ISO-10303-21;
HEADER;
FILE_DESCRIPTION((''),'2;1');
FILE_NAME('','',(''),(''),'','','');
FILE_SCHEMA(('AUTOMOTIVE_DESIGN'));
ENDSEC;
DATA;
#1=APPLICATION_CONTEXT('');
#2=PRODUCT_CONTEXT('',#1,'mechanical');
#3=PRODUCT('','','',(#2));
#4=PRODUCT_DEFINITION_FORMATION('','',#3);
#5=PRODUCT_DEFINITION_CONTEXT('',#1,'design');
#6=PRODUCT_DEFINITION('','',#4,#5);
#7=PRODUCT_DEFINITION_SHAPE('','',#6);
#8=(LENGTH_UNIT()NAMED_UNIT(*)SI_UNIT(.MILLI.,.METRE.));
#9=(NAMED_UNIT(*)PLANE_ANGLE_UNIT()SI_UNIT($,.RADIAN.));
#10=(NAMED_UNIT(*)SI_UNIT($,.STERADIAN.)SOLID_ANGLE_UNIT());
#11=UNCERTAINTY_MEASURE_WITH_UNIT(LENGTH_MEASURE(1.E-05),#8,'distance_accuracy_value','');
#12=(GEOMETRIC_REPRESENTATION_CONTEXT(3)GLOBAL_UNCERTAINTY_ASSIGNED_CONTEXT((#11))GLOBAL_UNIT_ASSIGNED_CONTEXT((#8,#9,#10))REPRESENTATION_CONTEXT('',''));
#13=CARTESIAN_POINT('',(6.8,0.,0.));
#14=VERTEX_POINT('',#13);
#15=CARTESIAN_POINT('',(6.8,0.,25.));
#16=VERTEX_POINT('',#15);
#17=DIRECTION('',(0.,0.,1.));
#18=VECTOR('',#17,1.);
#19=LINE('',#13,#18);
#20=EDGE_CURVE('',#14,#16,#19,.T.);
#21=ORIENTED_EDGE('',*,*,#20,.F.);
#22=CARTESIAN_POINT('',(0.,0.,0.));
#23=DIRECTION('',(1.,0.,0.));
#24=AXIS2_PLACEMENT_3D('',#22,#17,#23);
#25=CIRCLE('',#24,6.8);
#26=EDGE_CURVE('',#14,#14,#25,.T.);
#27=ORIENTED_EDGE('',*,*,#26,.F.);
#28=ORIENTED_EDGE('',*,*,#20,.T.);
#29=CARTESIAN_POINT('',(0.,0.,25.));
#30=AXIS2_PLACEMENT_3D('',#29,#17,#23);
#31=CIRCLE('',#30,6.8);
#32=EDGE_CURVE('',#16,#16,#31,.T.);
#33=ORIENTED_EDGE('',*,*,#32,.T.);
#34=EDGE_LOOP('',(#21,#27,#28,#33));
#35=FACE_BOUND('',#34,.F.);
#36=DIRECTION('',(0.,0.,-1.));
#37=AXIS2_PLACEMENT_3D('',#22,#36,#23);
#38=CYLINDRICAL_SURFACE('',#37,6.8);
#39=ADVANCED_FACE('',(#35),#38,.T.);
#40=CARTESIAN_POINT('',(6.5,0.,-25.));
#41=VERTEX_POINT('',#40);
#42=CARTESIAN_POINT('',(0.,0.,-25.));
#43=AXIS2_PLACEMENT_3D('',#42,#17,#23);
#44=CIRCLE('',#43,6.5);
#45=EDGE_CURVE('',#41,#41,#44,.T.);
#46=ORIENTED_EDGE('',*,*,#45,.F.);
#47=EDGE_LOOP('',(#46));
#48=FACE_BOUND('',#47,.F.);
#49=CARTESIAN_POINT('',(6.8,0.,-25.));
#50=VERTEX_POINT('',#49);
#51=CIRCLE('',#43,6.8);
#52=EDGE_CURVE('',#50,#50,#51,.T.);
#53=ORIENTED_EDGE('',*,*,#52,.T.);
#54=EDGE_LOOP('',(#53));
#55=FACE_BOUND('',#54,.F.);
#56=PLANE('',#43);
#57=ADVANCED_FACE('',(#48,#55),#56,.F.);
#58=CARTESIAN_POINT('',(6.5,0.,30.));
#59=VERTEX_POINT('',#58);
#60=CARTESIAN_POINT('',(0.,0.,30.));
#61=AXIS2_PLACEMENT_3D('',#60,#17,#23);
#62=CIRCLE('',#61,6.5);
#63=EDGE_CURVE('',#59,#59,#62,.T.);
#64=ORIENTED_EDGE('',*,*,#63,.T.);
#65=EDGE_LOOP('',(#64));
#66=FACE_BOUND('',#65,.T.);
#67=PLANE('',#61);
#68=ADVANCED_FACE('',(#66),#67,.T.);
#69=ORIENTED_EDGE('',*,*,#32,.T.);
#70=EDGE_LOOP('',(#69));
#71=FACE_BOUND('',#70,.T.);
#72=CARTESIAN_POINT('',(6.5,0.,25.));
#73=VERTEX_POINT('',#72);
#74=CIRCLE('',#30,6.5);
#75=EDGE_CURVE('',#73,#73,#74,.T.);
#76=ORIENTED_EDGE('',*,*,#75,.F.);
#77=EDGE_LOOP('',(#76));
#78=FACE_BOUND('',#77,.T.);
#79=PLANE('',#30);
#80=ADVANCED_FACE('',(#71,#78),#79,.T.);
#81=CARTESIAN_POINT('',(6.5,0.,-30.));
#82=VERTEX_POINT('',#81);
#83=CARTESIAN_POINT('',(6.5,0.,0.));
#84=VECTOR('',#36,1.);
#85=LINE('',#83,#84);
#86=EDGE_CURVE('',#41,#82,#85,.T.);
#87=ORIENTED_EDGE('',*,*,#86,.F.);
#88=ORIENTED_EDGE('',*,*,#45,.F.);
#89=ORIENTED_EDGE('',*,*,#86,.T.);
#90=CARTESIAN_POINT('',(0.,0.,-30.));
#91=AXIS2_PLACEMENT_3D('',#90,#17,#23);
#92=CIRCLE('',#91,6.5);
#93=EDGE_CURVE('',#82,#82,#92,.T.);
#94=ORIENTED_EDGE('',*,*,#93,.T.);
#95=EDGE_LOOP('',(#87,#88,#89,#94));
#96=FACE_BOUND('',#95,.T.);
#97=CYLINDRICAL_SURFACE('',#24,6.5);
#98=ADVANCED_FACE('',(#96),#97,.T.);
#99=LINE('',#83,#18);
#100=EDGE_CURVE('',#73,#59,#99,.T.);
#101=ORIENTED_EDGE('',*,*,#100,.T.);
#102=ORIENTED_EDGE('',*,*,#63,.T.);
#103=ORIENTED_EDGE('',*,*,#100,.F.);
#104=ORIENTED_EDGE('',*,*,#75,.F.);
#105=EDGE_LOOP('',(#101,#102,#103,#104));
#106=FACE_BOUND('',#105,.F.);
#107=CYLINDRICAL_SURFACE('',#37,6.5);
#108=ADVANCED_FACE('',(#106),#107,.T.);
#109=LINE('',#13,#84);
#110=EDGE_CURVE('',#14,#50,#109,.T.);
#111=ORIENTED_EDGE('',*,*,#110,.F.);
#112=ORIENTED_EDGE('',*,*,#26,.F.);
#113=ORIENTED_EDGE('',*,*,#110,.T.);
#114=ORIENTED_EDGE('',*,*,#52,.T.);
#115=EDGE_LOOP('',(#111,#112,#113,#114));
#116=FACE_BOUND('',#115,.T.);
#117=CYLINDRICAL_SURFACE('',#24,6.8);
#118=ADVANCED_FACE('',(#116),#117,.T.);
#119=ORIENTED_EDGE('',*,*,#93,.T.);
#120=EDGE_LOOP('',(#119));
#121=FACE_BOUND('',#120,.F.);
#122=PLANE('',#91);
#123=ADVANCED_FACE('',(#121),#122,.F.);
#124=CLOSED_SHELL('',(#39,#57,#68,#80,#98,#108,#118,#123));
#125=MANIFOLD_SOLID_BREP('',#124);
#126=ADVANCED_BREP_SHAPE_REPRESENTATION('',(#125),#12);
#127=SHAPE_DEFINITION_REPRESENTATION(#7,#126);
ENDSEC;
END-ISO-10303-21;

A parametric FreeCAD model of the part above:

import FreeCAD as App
import Part
import Sketcher
Q = App.Units.Quantity

doc = App.newDocument("Part")
params = doc.addObject("Spreadsheet::Sheet", "Params")
for row, (alias, value) in enumerate([
    ("sketch1_diameter", "13 mm"),
    ("pad1_length", "30 mm"),
    ("pad1_length2", "30 mm"),
    ("sketch2_diameter", "13 mm"),
    ("sketch2_diameter2", "13.6 mm"),
    ("pad2_length", "50 mm"),
], start=1):
    params.set(f"A{row}", alias)
    params.set(f"B{row}", "=" + value)
    params.setAlias(f"B{row}", alias)

body = doc.addObject("PartDesign::Body", "Body")

# Sketch on XY plane
sketch1 = body.newObject("Sketcher::SketchObject", "Sketch")
sketch1.AttachmentSupport = (doc.getObject("XY_Plane"), [""])
sketch1.MapMode = "FlatFace"
sketch1.addGeometry(Part.Circle(App.Vector(0, 0, 0), App.Vector(0, 0, 1), 6), False)
sketch1.addConstraint(Sketcher.Constraint("Coincident", 0, 3, -1, 1))
sketch1.addConstraint(Sketcher.Constraint("Diameter", 0, Q("13 mm")))
sketch1.setExpression("Constraints[1]", "Params.sketch1_diameter")
pad1 = body.newObject("PartDesign::Pad", "Pad")
pad1.Profile = sketch1
pad1.Type = "TwoLengths"
pad1.setExpression("Length", "Params.pad1_length")
pad1.setExpression("Length2", "Params.pad1_length2")

# Sketch on XY plane
sketch2 = body.newObject("Sketcher::SketchObject", "Sketch001")
sketch2.AttachmentSupport = (doc.getObject("XY_Plane"), [""])
sketch2.MapMode = "FlatFace"
sketch2.addGeometry(Part.Circle(App.Vector(0, 0, 0), App.Vector(0, 0, 1), 7), False)
sketch2.addGeometry(Part.Circle(App.Vector(0, 0, 0), App.Vector(0, 0, 1), 6), False)
sketch2.addConstraint(Sketcher.Constraint("Coincident", 0, 3, -1, 1))
sketch2.addConstraint(Sketcher.Constraint("Coincident", 1, 3, -1, 1))
sketch2.addConstraint(Sketcher.Constraint("Diameter", 1, Q("13 mm")))
sketch2.addConstraint(Sketcher.Constraint("Diameter", 0, Q("13.6 mm")))
sketch2.setExpression("Constraints[2]", "Params.sketch2_diameter")
sketch2.setExpression("Constraints[3]", "Params.sketch2_diameter2")
pad2 = body.newObject("PartDesign::Pad", "Pad001")
pad2.Profile = sketch2
pad2.setExpression("Length", "Params.pad2_length")
pad2.Midplane = True

doc.recompute()
